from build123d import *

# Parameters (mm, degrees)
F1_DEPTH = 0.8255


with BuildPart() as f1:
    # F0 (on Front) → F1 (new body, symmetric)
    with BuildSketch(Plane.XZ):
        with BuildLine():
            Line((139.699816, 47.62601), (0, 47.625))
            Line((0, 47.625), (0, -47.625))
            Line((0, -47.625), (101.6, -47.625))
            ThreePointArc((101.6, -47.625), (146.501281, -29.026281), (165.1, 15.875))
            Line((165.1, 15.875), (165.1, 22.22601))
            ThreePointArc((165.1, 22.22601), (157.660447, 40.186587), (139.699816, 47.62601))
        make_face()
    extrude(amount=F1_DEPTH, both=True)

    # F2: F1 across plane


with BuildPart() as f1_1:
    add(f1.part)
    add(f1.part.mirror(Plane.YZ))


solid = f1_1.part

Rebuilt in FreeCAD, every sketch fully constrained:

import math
import FreeCAD as App
import Part
import Sketcher

V = App.Vector
Q = App.Units.Quantity

doc = App.newDocument("Part")
body = doc.addObject("PartDesign::Body", "Body")

# Sketch on XZ plane
sketch1 = body.newObject("Sketcher::SketchObject", "Sketch")
sketch1.AttachmentSupport = (doc.getObject("XZ_Plane"), [""])
sketch1.MapMode = "FlatFace"
sketch1.addGeometry(Part.LineSegment(V(139.699816, 47.62601, 0), V(0, 47.625, 0)), False)
sketch1.addGeometry(Part.LineSegment(V(0, 47.625, 0), V(0, -47.625, 0)), False)
sketch1.addGeometry(Part.LineSegment(V(0, -47.625, 0), V(101.6, -47.625, 0)), False)
sketch1.addGeometry(Part.ArcOfCircle(Part.Circle(V(101.600001, 15.874999, 0), V(0, 0, 1), 63.499999), math.radians(-90.000001), math.radians(0.000001)), False)
sketch1.addGeometry(Part.LineSegment(V(165.1, 15.875, 0), V(165.1, 22.22601, 0)), False)
sketch1.addGeometry(Part.ArcOfCircle(Part.Circle(V(139.699999, 22.226009, 0), V(0, 0, 1), 25.400001), math.radians(0.000002), math.radians(90.000413)), False)
sketch1.addConstraint(Sketcher.Constraint("Coincident", 0, 2, 1, 1))
sketch1.addConstraint(Sketcher.Constraint("Coincident", 1, 2, 2, 1))
sketch1.addConstraint(Sketcher.Constraint("Tangent", 2, 2, 3, 1))
sketch1.addConstraint(Sketcher.Constraint("Tangent", 3, 2, 4, 1))
sketch1.addConstraint(Sketcher.Constraint("Tangent", 4, 2, 5, 1))
sketch1.addConstraint(Sketcher.Constraint("Tangent", 5, 2, 0, 1))
sketch1.addConstraint(Sketcher.Constraint("Vertical", 1))
sketch1.addConstraint(Sketcher.Constraint("Horizontal", 2))
sketch1.addConstraint(Sketcher.Constraint("Vertical", 4))
sketch1.addConstraint(Sketcher.Constraint("Symmetric", 0, 2, 1, 2, -1, 1))
sketch1.addConstraint(Sketcher.Constraint("Radius", 5, Q("1 in")))
sketch1.addConstraint(Sketcher.Constraint("Radius", 3, Q("2.4999999 in")))
sketch1.addConstraint(Sketcher.Constraint("DistanceX", 2, 1, 2, 2, Q("4 in")))
sketch1.addConstraint(Sketcher.Constraint("DistanceY", 1, 2, 1, 1, Q("3.75 in")))
sketch1.addConstraint(Sketcher.Constraint("DistanceY", 4, 1, 4, 2, Q("6.35101 mm")))
pad1 = body.newObject("PartDesign::Pad", "Pad")
pad1.Profile = sketch1
pad1.Length = Q("0.065 in")
pad1.Midplane = True
body2 = doc.addObject("PartDesign::Body", "Body001")
doc.recompute()

body2.BaseFeature = body
doc.recompute()

mirroring = doc.addObject("Part::Mirroring", "Mirroring")
mirroring.Source = body
mirroring.Base = V(0, 0, 0)
mirroring.Normal = V(1, 0, 0)
body3 = doc.addObject("PartDesign::Body", "Body002")
body3.BaseFeature = mirroring
boolean = body2.newObject("PartDesign::Boolean", "Boolean")
boolean.Type = "Fuse"
boolean.addObjects([body3])
doc.recompute()
mirroring.Visibility = False

doc.recompute()
